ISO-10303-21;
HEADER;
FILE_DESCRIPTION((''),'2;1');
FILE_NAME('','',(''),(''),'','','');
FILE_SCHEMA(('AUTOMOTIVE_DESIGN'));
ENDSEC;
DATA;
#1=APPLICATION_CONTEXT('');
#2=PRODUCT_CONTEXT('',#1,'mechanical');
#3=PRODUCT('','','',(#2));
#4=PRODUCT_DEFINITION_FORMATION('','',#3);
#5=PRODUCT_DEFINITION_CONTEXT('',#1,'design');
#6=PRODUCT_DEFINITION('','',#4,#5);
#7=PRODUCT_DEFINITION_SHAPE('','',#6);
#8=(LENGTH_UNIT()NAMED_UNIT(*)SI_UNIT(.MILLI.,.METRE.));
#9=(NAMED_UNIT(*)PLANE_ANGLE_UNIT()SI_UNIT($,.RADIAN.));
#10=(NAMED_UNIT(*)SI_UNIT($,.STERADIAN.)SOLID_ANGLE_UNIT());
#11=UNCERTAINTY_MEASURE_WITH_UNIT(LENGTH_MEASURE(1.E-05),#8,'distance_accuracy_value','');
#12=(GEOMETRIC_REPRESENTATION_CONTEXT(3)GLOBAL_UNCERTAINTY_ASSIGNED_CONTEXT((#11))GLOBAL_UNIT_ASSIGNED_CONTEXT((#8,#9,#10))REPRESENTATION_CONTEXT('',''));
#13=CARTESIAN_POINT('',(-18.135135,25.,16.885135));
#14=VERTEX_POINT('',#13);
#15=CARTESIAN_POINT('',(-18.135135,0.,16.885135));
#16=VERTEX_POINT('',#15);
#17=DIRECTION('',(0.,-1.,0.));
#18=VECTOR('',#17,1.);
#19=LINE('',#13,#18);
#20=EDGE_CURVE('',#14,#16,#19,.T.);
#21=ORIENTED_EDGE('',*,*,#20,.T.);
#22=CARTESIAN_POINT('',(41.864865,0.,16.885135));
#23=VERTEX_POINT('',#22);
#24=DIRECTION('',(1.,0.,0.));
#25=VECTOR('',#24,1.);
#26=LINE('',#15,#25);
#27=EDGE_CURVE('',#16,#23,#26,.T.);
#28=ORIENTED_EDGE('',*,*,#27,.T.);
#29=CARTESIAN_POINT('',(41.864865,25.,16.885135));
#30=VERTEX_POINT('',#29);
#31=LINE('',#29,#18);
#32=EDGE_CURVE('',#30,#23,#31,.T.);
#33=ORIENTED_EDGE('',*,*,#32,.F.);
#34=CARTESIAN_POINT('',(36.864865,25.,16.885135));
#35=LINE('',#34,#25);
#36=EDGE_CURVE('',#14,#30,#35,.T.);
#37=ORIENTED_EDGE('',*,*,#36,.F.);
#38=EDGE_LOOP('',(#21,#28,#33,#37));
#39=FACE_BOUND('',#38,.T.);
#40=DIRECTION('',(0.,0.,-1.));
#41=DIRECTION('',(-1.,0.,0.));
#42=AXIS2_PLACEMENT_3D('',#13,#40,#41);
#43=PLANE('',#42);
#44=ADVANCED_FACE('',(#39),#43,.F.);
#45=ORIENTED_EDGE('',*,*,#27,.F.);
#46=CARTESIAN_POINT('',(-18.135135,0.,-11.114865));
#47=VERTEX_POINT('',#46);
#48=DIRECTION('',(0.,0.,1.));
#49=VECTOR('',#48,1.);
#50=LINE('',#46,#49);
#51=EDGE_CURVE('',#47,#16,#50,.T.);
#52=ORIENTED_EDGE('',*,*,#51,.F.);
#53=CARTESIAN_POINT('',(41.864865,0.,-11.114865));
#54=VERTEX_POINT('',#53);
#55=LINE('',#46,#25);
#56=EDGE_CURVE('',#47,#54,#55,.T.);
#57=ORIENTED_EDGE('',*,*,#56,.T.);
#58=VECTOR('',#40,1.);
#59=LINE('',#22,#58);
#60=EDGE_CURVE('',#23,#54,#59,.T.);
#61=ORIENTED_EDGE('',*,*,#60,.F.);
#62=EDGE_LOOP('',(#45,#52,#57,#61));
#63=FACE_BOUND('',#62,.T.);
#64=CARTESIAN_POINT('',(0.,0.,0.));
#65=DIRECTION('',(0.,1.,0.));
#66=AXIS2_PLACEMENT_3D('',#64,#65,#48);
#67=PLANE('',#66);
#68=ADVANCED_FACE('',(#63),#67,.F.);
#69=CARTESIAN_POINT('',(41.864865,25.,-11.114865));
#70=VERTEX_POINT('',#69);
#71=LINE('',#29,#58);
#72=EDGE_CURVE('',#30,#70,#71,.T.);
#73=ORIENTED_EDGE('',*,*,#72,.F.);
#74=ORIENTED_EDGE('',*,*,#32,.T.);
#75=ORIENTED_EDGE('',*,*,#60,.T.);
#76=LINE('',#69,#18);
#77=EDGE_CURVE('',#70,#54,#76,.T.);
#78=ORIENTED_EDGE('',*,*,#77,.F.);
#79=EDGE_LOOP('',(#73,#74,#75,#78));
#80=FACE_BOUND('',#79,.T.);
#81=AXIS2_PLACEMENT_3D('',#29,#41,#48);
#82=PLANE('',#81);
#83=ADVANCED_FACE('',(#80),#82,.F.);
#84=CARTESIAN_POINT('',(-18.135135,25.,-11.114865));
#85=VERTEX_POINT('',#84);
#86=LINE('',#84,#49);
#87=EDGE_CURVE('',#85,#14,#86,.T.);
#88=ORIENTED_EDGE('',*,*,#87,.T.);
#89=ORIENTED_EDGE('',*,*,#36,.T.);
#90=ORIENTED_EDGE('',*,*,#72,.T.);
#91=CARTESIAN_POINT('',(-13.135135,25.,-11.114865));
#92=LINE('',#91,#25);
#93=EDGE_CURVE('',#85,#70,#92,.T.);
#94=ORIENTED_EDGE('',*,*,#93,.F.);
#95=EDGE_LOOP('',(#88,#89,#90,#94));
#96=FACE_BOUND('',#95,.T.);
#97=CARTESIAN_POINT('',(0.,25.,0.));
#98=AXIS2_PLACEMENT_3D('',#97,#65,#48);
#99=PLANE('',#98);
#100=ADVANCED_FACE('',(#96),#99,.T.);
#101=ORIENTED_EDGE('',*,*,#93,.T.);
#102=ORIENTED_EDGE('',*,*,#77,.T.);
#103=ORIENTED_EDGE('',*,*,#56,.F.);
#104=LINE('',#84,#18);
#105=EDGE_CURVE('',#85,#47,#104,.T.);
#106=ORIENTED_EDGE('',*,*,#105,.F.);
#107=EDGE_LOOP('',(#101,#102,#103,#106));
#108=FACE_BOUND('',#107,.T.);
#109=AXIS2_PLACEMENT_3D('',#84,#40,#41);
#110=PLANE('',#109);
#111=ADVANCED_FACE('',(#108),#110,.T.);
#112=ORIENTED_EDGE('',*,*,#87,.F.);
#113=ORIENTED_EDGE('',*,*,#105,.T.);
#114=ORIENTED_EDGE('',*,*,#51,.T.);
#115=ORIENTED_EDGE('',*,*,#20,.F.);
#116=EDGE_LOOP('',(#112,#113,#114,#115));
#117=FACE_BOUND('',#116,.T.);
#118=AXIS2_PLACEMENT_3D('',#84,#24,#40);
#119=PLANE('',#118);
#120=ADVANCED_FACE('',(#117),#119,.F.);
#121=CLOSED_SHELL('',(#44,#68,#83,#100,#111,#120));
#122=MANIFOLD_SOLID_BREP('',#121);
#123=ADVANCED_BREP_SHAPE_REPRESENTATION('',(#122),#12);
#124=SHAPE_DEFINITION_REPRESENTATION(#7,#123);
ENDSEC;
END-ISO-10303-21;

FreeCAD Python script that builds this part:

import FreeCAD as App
import Part
import Sketcher
Q = App.Units.Quantity

doc = App.newDocument("Part")
body = doc.addObject("PartDesign::Body", "Body")

# Sketch on XZ plane
sketch1 = body.newObject("Sketcher::SketchObject", "Sketch")
sketch1.AttachmentSupport = (doc.getObject("XZ_Plane"), [""])
sketch1.MapMode = "FlatFace"
sketch1.addGeometry([
    Part.LineSegment(App.Vector(42, -11, 0), App.Vector(-18, -11, 0)),
    Part.LineSegment(App.Vector(-18, -11, 0), App.Vector(-18, 17, 0)),
    Part.LineSegment(App.Vector(-18, 17, 0), App.Vector(42, 17, 0)),
    Part.LineSegment(App.Vector(42, 17, 0), App.Vector(42, -11, 0)),
], False)
sketch1.addConstraint([
    Sketcher.Constraint("Coincident", 0, 2, 1, 1),
    Sketcher.Constraint("Coincident", 1, 2, 2, 1),
    Sketcher.Constraint("Coincident", 2, 2, 3, 1),
    Sketcher.Constraint("Coincident", 3, 2, 0, 1),
    Sketcher.Constraint("Horizontal", 0),
    Sketcher.Constraint("Vertical", 1),
    Sketcher.Constraint("Horizontal", 2),
    Sketcher.Constraint("Vertical", 3),
    Sketcher.Constraint("DistanceX", 0, 2, 0, 1, Q("60 mm")),
    Sketcher.Constraint("DistanceY", 1, 1, 1, 2, Q("28 mm")),
    Sketcher.Constraint("DistanceX", 0, 2, -1, 1, Q("18.135135 mm")),
    Sketcher.Constraint("DistanceY", 0, 2, -1, 1, Q("11.114865 mm")),
])
pad1 = body.newObject("PartDesign::Pad", "Pad")
pad1.Profile = sketch1
pad1.Length = 25
pad1.Reversed = True

doc.recompute()
